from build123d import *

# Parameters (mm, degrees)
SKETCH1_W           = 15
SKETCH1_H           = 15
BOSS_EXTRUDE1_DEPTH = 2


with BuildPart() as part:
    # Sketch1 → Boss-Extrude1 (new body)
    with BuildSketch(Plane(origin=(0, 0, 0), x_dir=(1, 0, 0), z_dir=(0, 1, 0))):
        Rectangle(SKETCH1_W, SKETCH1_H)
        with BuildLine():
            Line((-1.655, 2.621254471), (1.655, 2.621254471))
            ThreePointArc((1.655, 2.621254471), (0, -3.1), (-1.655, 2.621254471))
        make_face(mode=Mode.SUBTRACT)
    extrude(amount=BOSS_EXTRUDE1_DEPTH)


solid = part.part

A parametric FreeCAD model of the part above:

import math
import FreeCAD as App
import Part
import Sketcher
from FreeCAD import Vector
Q = App.Units.Quantity

doc = App.newDocument("Part")
body = doc.addObject("PartDesign::Body", "Body")

sketch1 = doc.addObject("Sketcher::SketchObject", "Sketch")
body.addObject(sketch1)
sketch1.AttachmentSupport = (doc.XZ_Plane, [""])
sketch1.MapMode = "FlatFace"
sketch1.addGeometry(Part.LineSegment(Vector(-7.5, -7.5, 0), Vector(-7.5, 7.5, 0)), False)
sketch1.addGeometry(Part.LineSegment(Vector(-7.5, 7.5, 0), Vector(7.5, 7.5, 0)), False)
sketch1.addGeometry(Part.LineSegment(Vector(7.5, 7.5, 0), Vector(7.5, -7.5, 0)), False)
sketch1.addGeometry(Part.LineSegment(Vector(7.5, -7.5, 0), Vector(-7.5, -7.5, 0)), False)
sketch1.addGeometry(Part.ArcOfCircle(Part.Circle(Vector(0, 0, 0), Vector(0, 0, 1), 3.1), math.radians(-57.732624), math.radians(237.732624)), False)
sketch1.addGeometry(Part.LineSegment(Vector(-1.655, -2.621254, 0), Vector(1.655, -2.621254, 0)), False)
sketch1.addConstraint(Sketcher.Constraint("Coincident", 0, 2, 1, 1))
sketch1.addConstraint(Sketcher.Constraint("Coincident", 1, 2, 2, 1))
sketch1.addConstraint(Sketcher.Constraint("Coincident", 2, 2, 3, 1))
sketch1.addConstraint(Sketcher.Constraint("Coincident", 3, 2, 0, 1))
sketch1.addConstraint(Sketcher.Constraint("Coincident", 4, 1, 5, 2))
sketch1.addConstraint(Sketcher.Constraint("Coincident", 5, 1, 4, 2))
sketch1.addConstraint(Sketcher.Constraint("Vertical", 0))
sketch1.addConstraint(Sketcher.Constraint("Horizontal", 1))
sketch1.addConstraint(Sketcher.Constraint("Vertical", 2))
sketch1.addConstraint(Sketcher.Constraint("Horizontal", 3))
sketch1.addConstraint(Sketcher.Constraint("Horizontal", 5))
sketch1.addConstraint(Sketcher.Constraint("Coincident", 4, 3, -1, 1))
sketch1.addConstraint(Sketcher.Constraint("Symmetric", 0, 2, 2, 2, -1, 1))
sketch1.addConstraint(Sketcher.Constraint("Equal", 3, 0))
sketch1.addConstraint(Sketcher.Constraint("Radius", 4, Q("3.1 mm")))
sketch1.addConstraint(Sketcher.Constraint("DistanceX", 1, 1, 1, 2, Q("15 mm")))
sketch1.addConstraint(Sketcher.Constraint("DistanceX", 5, 1, 5, 2, Q("3.31 mm")))
pad1 = doc.addObject("PartDesign::Pad", "Pad")
body.addObject(pad1)
pad1.Profile = sketch1
pad1.Length = 2
pad1.Reversed = True

doc.recompute()
